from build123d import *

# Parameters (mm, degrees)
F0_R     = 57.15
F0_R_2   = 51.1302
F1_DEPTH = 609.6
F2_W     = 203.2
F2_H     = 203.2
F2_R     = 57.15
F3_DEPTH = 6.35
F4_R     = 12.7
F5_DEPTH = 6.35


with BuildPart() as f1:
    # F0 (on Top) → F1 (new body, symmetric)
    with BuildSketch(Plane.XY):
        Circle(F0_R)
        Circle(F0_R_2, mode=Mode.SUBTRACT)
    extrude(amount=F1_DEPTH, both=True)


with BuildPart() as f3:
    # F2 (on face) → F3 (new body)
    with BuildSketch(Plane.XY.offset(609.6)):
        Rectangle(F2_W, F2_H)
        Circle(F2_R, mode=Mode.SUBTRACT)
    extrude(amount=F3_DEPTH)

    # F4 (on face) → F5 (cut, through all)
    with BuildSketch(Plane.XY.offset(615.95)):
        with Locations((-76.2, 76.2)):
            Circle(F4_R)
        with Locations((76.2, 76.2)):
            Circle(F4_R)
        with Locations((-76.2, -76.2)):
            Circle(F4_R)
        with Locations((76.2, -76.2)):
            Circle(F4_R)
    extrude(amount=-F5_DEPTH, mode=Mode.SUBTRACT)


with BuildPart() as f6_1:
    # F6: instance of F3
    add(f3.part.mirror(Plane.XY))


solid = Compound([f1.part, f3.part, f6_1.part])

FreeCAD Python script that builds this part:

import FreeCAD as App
import Part
import Sketcher
Q = App.Units.Quantity


def add_polygon(sketch, points):
    """Adds a closed chain of lines whose ends are joined by coincident constraints."""
    first, n = sketch.GeometryCount, len(points)
    for a, b in zip(points, points[1:] + points[:1]):
        sketch.addGeometry(Part.LineSegment(App.Vector(*a, 0), App.Vector(*b, 0)), False)
    for i in range(n):
        sketch.addConstraint(Sketcher.Constraint("Coincident", first + i, 2, first + (i + 1) % n, 1))

doc = App.newDocument("Part")
params = doc.addObject("Spreadsheet::Sheet", "Params")
for row, (alias, value) in enumerate([
    ("sketch1_diameter", "4.5 in"),
    ("sketch1_diameter2", "4.026 in"),
    ("pad1_length", "48 in"),
    ("sketch2_diameter", "4.5 in"),
    ("sketch2_width", "8 in"),
    ("pad2_length", "0.25 in"),
    ("sketch3_diameter", "1 in"),
], start=1):
    params.set(f"A{row}", alias)
    params.set(f"B{row}", "=" + value)
    params.setAlias(f"B{row}", alias)

body = doc.addObject("PartDesign::Body", "Body")

sketch1 = body.newObject("Sketcher::SketchObject", "Sketch")
sketch1.AttachmentSupport = (doc.getObject("XY_Plane"), [""])
sketch1.MapMode = "FlatFace"
sketch1.addGeometry([
    Part.Circle(App.Vector(0, 0, 0), App.Vector(0, 0, 1), 57),
    Part.Circle(App.Vector(0, 0, 0), App.Vector(0, 0, 1), 51),
], False)
sketch1.addConstraint([
    Sketcher.Constraint("Coincident", 0, 3, -1, 1),
    Sketcher.Constraint("Coincident", 1, 3, -1, 1),
    Sketcher.Constraint("Diameter", 0, Q("4.5 in")),
    Sketcher.Constraint("Diameter", 1, Q("4.026 in")),
])
sketch1.setExpression("Constraints[2]", "Params.sketch1_diameter")
sketch1.setExpression("Constraints[3]", "Params.sketch1_diameter2")
pad1 = body.newObject("PartDesign::Pad", "Pad")
pad1.Profile = sketch1
pad1.setExpression("Length", "Params.pad1_length")
pad1.Midplane = True
body2 = doc.addObject("PartDesign::Body", "Body001")

sketch2 = body2.newObject("Sketcher::SketchObject", "Sketch001")
sketch2.AttachmentSupport = (doc.getObject("XY_Plane001"), [""])
sketch2.MapMode = "FlatFace"
sketch2.AttachmentOffset = App.Placement(App.Vector(0, 0, 24 * 25.4), App.Rotation())
add_polygon(sketch2, [(-102, 102), (-102, -102), (102, -102), (102, 102)])
sketch2.addGeometry(Part.Circle(App.Vector(0, 0, 0), App.Vector(0, 0, 1), 57), False)
sketch2.addConstraint([
    Sketcher.Constraint("Vertical", 0),
    Sketcher.Constraint("Horizontal", 1),
    Sketcher.Constraint("Vertical", 2),
    Sketcher.Constraint("Horizontal", 3),
    Sketcher.Constraint("Coincident", 4, 3, -1, 1),
    Sketcher.Constraint("Symmetric", 0, 2, 2, 2, -1, 1),
    Sketcher.Constraint("Equal", 3, 0),
    Sketcher.Constraint("Diameter", 4, Q("4.5 in")),
    Sketcher.Constraint("DistanceX", 1, 1, 1, 2, Q("8 in")),
])
sketch2.setExpression("Constraints[11]", "Params.sketch2_diameter")
sketch2.setExpression("Constraints[12]", "Params.sketch2_width")
pad2 = body2.newObject("PartDesign::Pad", "Pad001")
pad2.Profile = sketch2
pad2.setExpression("Length", "Params.pad2_length")

sketch3 = body2.newObject("Sketcher::SketchObject", "Sketch002")
sketch3.AttachmentSupport = (doc.getObject("XY_Plane001"), [""])
sketch3.MapMode = "FlatFace"
sketch3.AttachmentOffset = App.Placement(App.Vector(0, 0, 24.25 * 25.4), App.Rotation())
sketch3.addGeometry([
    Part.Circle(App.Vector(-76, 76, 0), App.Vector(0, 0, 1), 13),
    Part.Circle(App.Vector(76, 76, 0), App.Vector(0, 0, 1), 13),
    Part.Circle(App.Vector(-76, -76, 0), App.Vector(0, 0, 1), 13),
    Part.Circle(App.Vector(76, -76, 0), App.Vector(0, 0, 1), 13),
], False)
sketch3.addConstraint([
    Sketcher.Constraint("Equal", 0, 1),
    Sketcher.Constraint("Equal", 1, 2),
    Sketcher.Constraint("Equal", 2, 3),
    Sketcher.Constraint("Symmetric", 1, 3, 2, 3, -1, 1),
    Sketcher.Constraint("Symmetric", 0, 3, 3, 3, -1, 1),
    Sketcher.Constraint("Symmetric", 0, 3, 1, 3, -2),
    Sketcher.Constraint("Diameter", 0, Q("1 in")),
    Sketcher.Constraint("DistanceX", 0, 3, -1, 1, Q("3 in")),
    Sketcher.Constraint("DistanceY", -1, 1, 0, 3, Q("3 in")),
])
sketch3.setExpression("Constraints[6]", "Params.sketch3_diameter")
pocket1 = body2.newObject("PartDesign::Pocket", "Pocket")
pocket1.Profile = sketch3
pocket1.Type = "ThroughAll"
body3 = doc.addObject("PartDesign::Body", "Body002")
doc.recompute()

mirroring = doc.addObject("Part::Mirroring", "Mirroring")
mirroring.Source = body2
mirroring.Base = App.Vector(0, 0, 0)
mirroring.Normal = App.Vector(0, 0, 1)
body3.BaseFeature = mirroring
doc.recompute()
mirroring.Visibility = False

doc.recompute()
